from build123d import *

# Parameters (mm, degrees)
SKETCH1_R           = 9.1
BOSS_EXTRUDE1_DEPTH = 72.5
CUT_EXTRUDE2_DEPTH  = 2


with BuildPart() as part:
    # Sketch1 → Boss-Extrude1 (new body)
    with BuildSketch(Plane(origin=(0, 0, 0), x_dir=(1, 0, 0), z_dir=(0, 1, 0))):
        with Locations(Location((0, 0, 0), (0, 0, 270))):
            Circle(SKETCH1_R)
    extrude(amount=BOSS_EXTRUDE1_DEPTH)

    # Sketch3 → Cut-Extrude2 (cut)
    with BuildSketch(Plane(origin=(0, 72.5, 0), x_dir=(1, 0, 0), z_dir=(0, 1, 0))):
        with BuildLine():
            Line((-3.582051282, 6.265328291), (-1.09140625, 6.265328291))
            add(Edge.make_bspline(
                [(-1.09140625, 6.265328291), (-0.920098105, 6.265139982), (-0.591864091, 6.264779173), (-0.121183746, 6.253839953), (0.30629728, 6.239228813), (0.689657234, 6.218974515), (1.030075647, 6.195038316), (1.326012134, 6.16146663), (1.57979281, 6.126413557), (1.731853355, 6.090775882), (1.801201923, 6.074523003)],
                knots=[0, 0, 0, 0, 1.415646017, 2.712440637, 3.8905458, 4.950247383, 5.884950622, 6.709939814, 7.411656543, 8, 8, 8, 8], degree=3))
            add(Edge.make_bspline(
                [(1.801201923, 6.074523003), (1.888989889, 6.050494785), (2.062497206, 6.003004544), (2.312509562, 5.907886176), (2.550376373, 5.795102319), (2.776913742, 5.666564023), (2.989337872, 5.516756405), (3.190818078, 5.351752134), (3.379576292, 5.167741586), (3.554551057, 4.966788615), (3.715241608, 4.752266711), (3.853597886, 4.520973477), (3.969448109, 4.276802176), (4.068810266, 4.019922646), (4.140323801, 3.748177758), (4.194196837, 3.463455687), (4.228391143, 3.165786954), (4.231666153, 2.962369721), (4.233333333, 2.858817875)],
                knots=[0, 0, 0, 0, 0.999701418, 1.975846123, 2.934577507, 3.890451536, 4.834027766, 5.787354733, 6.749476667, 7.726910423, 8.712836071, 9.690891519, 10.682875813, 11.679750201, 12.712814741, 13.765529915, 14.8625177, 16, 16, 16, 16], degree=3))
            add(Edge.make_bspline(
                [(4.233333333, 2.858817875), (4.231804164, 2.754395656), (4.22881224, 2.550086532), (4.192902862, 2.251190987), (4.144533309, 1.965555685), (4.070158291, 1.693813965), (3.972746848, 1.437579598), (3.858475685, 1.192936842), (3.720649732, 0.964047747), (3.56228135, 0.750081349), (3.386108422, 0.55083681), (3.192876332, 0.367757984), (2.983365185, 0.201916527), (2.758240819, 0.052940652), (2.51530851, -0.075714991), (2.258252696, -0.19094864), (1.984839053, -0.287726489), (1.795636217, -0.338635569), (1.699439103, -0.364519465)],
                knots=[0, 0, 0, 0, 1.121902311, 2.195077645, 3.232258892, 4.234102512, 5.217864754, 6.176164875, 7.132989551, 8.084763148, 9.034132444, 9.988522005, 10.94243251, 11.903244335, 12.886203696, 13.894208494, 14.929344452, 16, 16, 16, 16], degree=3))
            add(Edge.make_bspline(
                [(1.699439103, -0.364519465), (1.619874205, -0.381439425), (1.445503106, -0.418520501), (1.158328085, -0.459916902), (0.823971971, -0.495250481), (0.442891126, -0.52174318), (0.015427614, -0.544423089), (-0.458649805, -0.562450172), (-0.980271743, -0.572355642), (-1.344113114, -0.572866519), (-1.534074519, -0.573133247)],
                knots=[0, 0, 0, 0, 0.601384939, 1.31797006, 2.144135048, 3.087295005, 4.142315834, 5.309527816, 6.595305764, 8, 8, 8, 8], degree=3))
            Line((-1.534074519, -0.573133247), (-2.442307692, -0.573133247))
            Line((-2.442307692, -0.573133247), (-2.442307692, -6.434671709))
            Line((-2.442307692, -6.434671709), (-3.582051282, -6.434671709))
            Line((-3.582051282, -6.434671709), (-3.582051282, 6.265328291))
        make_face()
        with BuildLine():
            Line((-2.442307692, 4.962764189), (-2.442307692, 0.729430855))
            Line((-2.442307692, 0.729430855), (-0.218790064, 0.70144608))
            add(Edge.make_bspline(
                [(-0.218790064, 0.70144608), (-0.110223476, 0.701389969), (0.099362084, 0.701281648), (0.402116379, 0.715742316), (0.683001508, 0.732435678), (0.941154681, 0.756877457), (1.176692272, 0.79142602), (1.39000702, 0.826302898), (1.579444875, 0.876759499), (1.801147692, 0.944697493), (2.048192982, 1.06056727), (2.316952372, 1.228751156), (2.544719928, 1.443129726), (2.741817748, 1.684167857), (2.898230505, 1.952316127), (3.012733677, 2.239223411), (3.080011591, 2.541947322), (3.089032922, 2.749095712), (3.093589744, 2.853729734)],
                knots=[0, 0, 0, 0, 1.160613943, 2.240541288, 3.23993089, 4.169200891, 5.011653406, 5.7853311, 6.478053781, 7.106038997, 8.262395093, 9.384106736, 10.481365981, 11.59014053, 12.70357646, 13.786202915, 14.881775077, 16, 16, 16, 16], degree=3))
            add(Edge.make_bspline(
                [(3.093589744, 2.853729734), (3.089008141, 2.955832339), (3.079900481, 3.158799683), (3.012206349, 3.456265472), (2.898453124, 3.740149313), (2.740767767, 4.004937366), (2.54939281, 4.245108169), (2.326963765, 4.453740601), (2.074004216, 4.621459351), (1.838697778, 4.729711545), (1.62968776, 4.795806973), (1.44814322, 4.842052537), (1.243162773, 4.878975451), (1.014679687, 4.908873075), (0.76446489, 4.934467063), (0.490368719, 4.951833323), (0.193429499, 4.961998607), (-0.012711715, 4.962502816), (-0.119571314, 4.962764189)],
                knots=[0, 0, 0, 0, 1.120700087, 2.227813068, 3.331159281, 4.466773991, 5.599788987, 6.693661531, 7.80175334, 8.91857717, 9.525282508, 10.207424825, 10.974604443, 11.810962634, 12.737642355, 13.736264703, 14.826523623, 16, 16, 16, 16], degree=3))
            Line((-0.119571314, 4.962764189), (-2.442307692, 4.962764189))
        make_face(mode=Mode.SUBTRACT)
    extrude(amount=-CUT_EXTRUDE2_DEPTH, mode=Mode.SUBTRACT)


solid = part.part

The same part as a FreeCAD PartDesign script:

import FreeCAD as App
import Part
import Sketcher

V = App.Vector
Q = App.Units.Quantity

doc = App.newDocument("Part")
params = doc.addObject("Spreadsheet::Sheet", "Params")
for row, (alias, value) in enumerate([
    ("sketch1_diameter", "18.2 mm"),
    ("pad1_length", "72.5 mm"),
    ("sketch2_height", "12.7 mm"),
    ("pocket1_length", "2 mm"),
], start=1):
    params.set(f"A{row}", alias)
    params.set(f"B{row}", "=" + value)
    params.setAlias(f"B{row}", alias)

body = doc.addObject("PartDesign::Body", "Body")

# Sketch on XZ plane
sketch1 = body.newObject("Sketcher::SketchObject", "Sketch")
sketch1.AttachmentSupport = (doc.getObject("XZ_Plane"), [""])
sketch1.MapMode = "FlatFace"
sketch1.addGeometry(Part.Circle(V(0, 0, 0), V(0, 0, 1), 9.1), False)
sketch1.addConstraint(Sketcher.Constraint("Coincident", 0, 3, -1, 1))
sketch1.addConstraint(Sketcher.Constraint("Diameter", 0, Q("18.2 mm")))
sketch1.setExpression("Constraints[1]", "Params.sketch1_diameter")
pad1 = body.newObject("PartDesign::Pad", "Pad")
pad1.Profile = sketch1
pad1.setExpression("Length", "Params.pad1_length")
pad1.Reversed = True

# Sketch on XZ plane
sketch2 = body.newObject("Sketcher::SketchObject", "Sketch001")
sketch2.AttachmentSupport = (doc.getObject("XZ_Plane"), [""])
sketch2.MapMode = "FlatFace"
sketch2.AttachmentOffset = App.Placement(V(0, 0, -72.5), App.Rotation())
sketch2.addGeometry(Part.LineSegment(V(-1.091406, -6.265328, 0), V(-3.582051, -6.265328, 0)), False)
sketch2.addGeometry(Part.LineSegment(V(-3.582051, -6.265328, 0), V(-3.582051, 6.434672, 0)), False)
sketch2.addGeometry(Part.LineSegment(V(-3.582051, 6.434672, 0), V(-2.442308, 6.434672, 0)), False)
sketch2.addGeometry(Part.LineSegment(V(-2.442308, 6.434672, 0), V(-2.442308, 0.573133, 0)), False)
sketch2.addGeometry(Part.LineSegment(V(-2.442308, 0.573133, 0), V(-1.534075, 0.573133, 0)), False)
sketch2.addGeometry(Part.BSplineCurve([V(1.699439, 0.364519, 0), V(1.619874, 0.381439, 0), V(1.445503, 0.418521, 0), V(1.158328, 0.459917, 0), V(0.823972, 0.49525, 0), V(0.442891, 0.521743, 0), V(0.015428, 0.544423, 0), V(-0.45865, 0.56245, 0), V(-0.980272, 0.572356, 0), V(-1.344113, 0.572867, 0), V(-1.534075, 0.573133, 0)], [4, 1, 1, 1, 1, 1, 1, 1, 4], [0, 0.601384939, 1.31797006, 2.144135048, 3.087295005, 4.142315834, 5.309527816, 6.595305764, 8], False, 3, [1, 1, 1, 1, 1, 1, 1, 1, 1, 1, 1], False), False)
sketch2.addGeometry(Part.BSplineCurve([V(4.233333, -2.858818, 0), V(4.231804, -2.754396, 0), V(4.228812, -2.550087, 0), V(4.192903, -2.251191, 0), V(4.144533, -1.965556, 0), V(4.070158, -1.693814, 0), V(3.972747, -1.43758, 0), V(3.858476, -1.192937, 0), V(3.72065, -0.964048, 0), V(3.562281, -0.750081, 0), V(3.386108, -0.550837, 0), V(3.192876, -0.367758, 0), V(2.983365, -0.201917, 0), V(2.758241, -0.052941, 0), V(2.515309, 0.075715, 0), V(2.258253, 0.190949, 0), V(1.984839, 0.287726, 0), V(1.795636, 0.338636, 0), V(1.699439, 0.364519, 0)], [4, 1, 1, 1, 1, 1, 1, 1, 1, 1, 1, 1, 1, 1, 1, 1, 4], [0, 1.121902311, 2.195077645, 3.232258892, 4.234102512, 5.217864754, 6.176164875, 7.132989551, 8.084763148, 9.034132444, 9.988522005, 10.94243251, 11.903244335, 12.886203696, 13.894208494, 14.929344452, 16], False, 3, [1, 1, 1, 1, 1, 1, 1, 1, 1, 1, 1, 1, 1, 1, 1, 1, 1, 1, 1], False), False)
sketch2.addGeometry(Part.BSplineCurve([V(1.801202, -6.074523, 0), V(1.88899, -6.050495, 0), V(2.062497, -6.003005, 0), V(2.31251, -5.907886, 0), V(2.550376, -5.795102, 0), V(2.776914, -5.666564, 0), V(2.989338, -5.516756, 0), V(3.190818, -5.351752, 0), V(3.379576, -5.167742, 0), V(3.554551, -4.966789, 0), V(3.715242, -4.752267, 0), V(3.853598, -4.520973, 0), V(3.969448, -4.276802, 0), V(4.06881, -4.019923, 0), V(4.140324, -3.748178, 0), V(4.194197, -3.463456, 0), V(4.228391, -3.165787, 0), V(4.231666, -2.96237, 0), V(4.233333, -2.858818, 0)], [4, 1, 1, 1, 1, 1, 1, 1, 1, 1, 1, 1, 1, 1, 1, 1, 4], [0, 0.999701418, 1.975846123, 2.934577507, 3.890451536, 4.834027766, 5.787354733, 6.749476667, 7.726910423, 8.712836071, 9.690891519, 10.682875813, 11.679750201, 12.712814741, 13.765529915, 14.8625177, 16], False, 3, [1, 1, 1, 1, 1, 1, 1, 1, 1, 1, 1, 1, 1, 1, 1, 1, 1, 1, 1], False), False)
sketch2.addGeometry(Part.BSplineCurve([V(-1.091406, -6.265328, 0), V(-0.920098, -6.26514, 0), V(-0.591864, -6.264779, 0), V(-0.121184, -6.25384, 0), V(0.306297, -6.239229, 0), V(0.689657, -6.218975, 0), V(1.030076, -6.195038, 0), V(1.326012, -6.161467, 0), V(1.579793, -6.126414, 0), V(1.731853, -6.090776, 0), V(1.801202, -6.074523, 0)], [4, 1, 1, 1, 1, 1, 1, 1, 4], [0, 1.415646017, 2.712440637, 3.8905458, 4.950247383, 5.884950622, 6.709939814, 7.411656543, 8], False, 3, [1, 1, 1, 1, 1, 1, 1, 1, 1, 1, 1], False), False)
sketch2.addGeometry(Part.LineSegment(V(-2.442308, -4.962764, 0), V(-0.119571, -4.962764, 0)), False)
sketch2.addGeometry(Part.BSplineCurve([V(3.09359, -2.85373, 0), V(3.089008, -2.955832, 0), V(3.0799, -3.1588, 0), V(3.012206, -3.456265, 0), V(2.898453, -3.740149, 0), V(2.740768, -4.004937, 0), V(2.549393, -4.245108, 0), V(2.326964, -4.453741, 0), V(2.074004, -4.621459, 0), V(1.838698, -4.729712, 0), V(1.629688, -4.795807, 0), V(1.448143, -4.842053, 0), V(1.243163, -4.878975, 0), V(1.01468, -4.908873, 0), V(0.764465, -4.934467, 0), V(0.490369, -4.951833, 0), V(0.193429, -4.961999, 0), V(-0.012712, -4.962503, 0), V(-0.119571, -4.962764, 0)], [4, 1, 1, 1, 1, 1, 1, 1, 1, 1, 1, 1, 1, 1, 1, 1, 4], [0, 1.120700087, 2.227813068, 3.331159281, 4.466773991, 5.599788987, 6.693661531, 7.80175334, 8.91857717, 9.525282508, 10.207424825, 10.974604443, 11.810962634, 12.737642355, 13.736264703, 14.826523623, 16], False, 3, [1, 1, 1, 1, 1, 1, 1, 1, 1, 1, 1, 1, 1, 1, 1, 1, 1, 1, 1], False), False)
sketch2.addGeometry(Part.BSplineCurve([V(-0.21879, -0.701446, 0), V(-0.110223, -0.70139, 0), V(0.099362, -0.701282, 0), V(0.402116, -0.715742, 0), V(0.683002, -0.732436, 0), V(0.941155, -0.756877, 0), V(1.176692, -0.791426, 0), V(1.390007, -0.826303, 0), V(1.579445, -0.876759, 0), V(1.801148, -0.944697, 0), V(2.048193, -1.060567, 0), V(2.316952, -1.228751, 0), V(2.54472, -1.44313, 0), V(2.741818, -1.684168, 0), V(2.898231, -1.952316, 0), V(3.012734, -2.239223, 0), V(3.080012, -2.541947, 0), V(3.089033, -2.749096, 0), V(3.09359, -2.85373, 0)], [4, 1, 1, 1, 1, 1, 1, 1, 1, 1, 1, 1, 1, 1, 1, 1, 4], [0, 1.160613943, 2.240541288, 3.23993089, 4.169200891, 5.011653406, 5.7853311, 6.478053781, 7.106038997, 8.262395093, 9.384106736, 10.481365981, 11.59014053, 12.70357646, 13.786202915, 14.881775077, 16], False, 3, [1, 1, 1, 1, 1, 1, 1, 1, 1, 1, 1, 1, 1, 1, 1, 1, 1, 1, 1], False), False)
sketch2.addGeometry(Part.LineSegment(V(-0.21879, -0.701446, 0), V(-2.442308, -0.729431, 0)), False)
sketch2.addGeometry(Part.LineSegment(V(-2.442308, -0.729431, 0), V(-2.442308, -4.962764, 0)), False)
sketch2.addConstraint(Sketcher.Constraint("Block", 5))
sketch2.addConstraint(Sketcher.Constraint("Block", 6))
sketch2.addConstraint(Sketcher.Constraint("Block", 7))
sketch2.addConstraint(Sketcher.Constraint("Block", 8))
sketch2.addConstraint(Sketcher.Constraint("Block", 10))
sketch2.addConstraint(Sketcher.Constraint("Block", 11))
sketch2.addConstraint(Sketcher.Constraint("Coincident", 0, 2, 1, 1))
sketch2.addConstraint(Sketcher.Constraint("Coincident", 1, 2, 2, 1))
sketch2.addConstraint(Sketcher.Constraint("Coincident", 2, 2, 3, 1))
sketch2.addConstraint(Sketcher.Constraint("Coincident", 3, 2, 4, 1))
sketch2.addConstraint(Sketcher.Constraint("Coincident", 4, 2, 5, 2))
sketch2.addConstraint(Sketcher.Constraint("Coincident", 8, 1, 0, 1))
sketch2.addConstraint(Sketcher.Constraint("Coincident", 9, 2, 10, 2))
sketch2.addConstraint(Sketcher.Constraint("Coincident", 11, 1, 12, 1))
sketch2.addConstraint(Sketcher.Constraint("Coincident", 12, 2, 13, 1))
sketch2.addConstraint(Sketcher.Constraint("Coincident", 13, 2, 9, 1))
sketch2.addConstraint(Sketcher.Constraint("Horizontal", 0))
sketch2.addConstraint(Sketcher.Constraint("Vertical", 1))
sketch2.addConstraint(Sketcher.Constraint("Horizontal", 2))
sketch2.addConstraint(Sketcher.Constraint("Vertical", 3))
sketch2.addConstraint(Sketcher.Constraint("Horizontal", 4))
sketch2.addConstraint(Sketcher.Constraint("Horizontal", 9))
sketch2.addConstraint(Sketcher.Constraint("Vertical", 13))
sketch2.addConstraint(Sketcher.Constraint("Vertical", 3, 2, 12, 2))
sketch2.addConstraint(Sketcher.Constraint("DistanceY", 1, 1, 1, 2, Q("12.7 mm")))
sketch2.addConstraint(Sketcher.Constraint("DistanceX", 0, 2, 0, 1, Q("2.490645 mm")))
sketch2.addConstraint(Sketcher.Constraint("DistanceX", 2, 1, 2, 2, Q("1.139744 mm")))
sketch2.addConstraint(Sketcher.Constraint("DistanceY", 13, 2, 13, 1, Q("4.233333 mm")))
sketch2.setExpression("Constraints[24]", "Params.sketch2_height")
pocket1 = body.newObject("PartDesign::Pocket", "Pocket")
pocket1.Profile = sketch2
pocket1.setExpression("Length", "Params.pocket1_length")
pocket1.Reversed = True

doc.recompute()
